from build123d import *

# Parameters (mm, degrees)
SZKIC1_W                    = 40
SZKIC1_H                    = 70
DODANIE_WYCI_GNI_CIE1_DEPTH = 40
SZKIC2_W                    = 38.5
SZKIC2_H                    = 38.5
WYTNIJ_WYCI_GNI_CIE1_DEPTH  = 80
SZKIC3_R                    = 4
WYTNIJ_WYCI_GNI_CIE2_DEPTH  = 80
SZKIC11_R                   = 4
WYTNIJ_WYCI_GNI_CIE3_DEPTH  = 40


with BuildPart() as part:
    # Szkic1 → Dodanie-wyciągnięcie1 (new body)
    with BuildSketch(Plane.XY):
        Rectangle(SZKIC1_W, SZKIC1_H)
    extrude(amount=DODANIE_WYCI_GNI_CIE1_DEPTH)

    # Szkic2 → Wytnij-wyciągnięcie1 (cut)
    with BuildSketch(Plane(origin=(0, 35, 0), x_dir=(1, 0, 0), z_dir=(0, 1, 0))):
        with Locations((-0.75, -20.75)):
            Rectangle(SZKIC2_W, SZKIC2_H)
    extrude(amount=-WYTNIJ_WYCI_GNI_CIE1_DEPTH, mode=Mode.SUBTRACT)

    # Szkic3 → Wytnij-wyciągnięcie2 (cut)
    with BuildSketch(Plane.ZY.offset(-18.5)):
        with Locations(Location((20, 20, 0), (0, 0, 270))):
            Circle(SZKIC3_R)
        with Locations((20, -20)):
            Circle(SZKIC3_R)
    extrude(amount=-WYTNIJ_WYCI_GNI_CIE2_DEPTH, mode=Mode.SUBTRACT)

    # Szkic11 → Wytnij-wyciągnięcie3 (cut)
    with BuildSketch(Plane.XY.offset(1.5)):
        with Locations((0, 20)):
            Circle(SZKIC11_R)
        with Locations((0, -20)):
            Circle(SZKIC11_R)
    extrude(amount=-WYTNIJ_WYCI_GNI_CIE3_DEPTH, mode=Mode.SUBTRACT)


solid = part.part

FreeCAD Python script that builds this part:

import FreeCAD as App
import Part
import Sketcher

V = App.Vector
Q = App.Units.Quantity


def add_polygon(sketch, points):
    """Adds a closed chain of lines whose ends are joined by coincident constraints."""
    first, n = sketch.GeometryCount, len(points)
    for a, b in zip(points, points[1:] + points[:1]):
        sketch.addGeometry(Part.LineSegment(App.Vector(*a, 0), App.Vector(*b, 0)), False)
    for i in range(n):
        sketch.addConstraint(Sketcher.Constraint("Coincident", first + i, 2, first + (i + 1) % n, 1))

doc = App.newDocument("Part")
body = doc.addObject("PartDesign::Body", "Body")

# Sketch on XY plane
sketch1 = body.newObject("Sketcher::SketchObject", "Sketch")
sketch1.AttachmentSupport = (doc.getObject("XY_Plane"), [""])
sketch1.MapMode = "FlatFace"
add_polygon(sketch1, [(-20, 35), (-20, -35), (20, -35), (20, 35)])  # lines 0-3
sketch1.addConstraint(Sketcher.Constraint("Vertical", 0))
sketch1.addConstraint(Sketcher.Constraint("Horizontal", 1))
sketch1.addConstraint(Sketcher.Constraint("Vertical", 2))
sketch1.addConstraint(Sketcher.Constraint("Horizontal", 3))
sketch1.addConstraint(Sketcher.Constraint("Symmetric", 0, 2, 2, 2, -1, 1))
sketch1.addConstraint(Sketcher.Constraint("DistanceX", 1, 1, 1, 2, Q("40 mm")))
sketch1.addConstraint(Sketcher.Constraint("DistanceY", 0, 2, 0, 1, Q("70 mm")))
pad1 = body.newObject("PartDesign::Pad", "Pad")
pad1.Profile = sketch1
pad1.Length = 40

# Sketch on XZ plane
sketch2 = body.newObject("Sketcher::SketchObject", "Sketch001")
sketch2.AttachmentSupport = (doc.getObject("XZ_Plane"), [""])
sketch2.MapMode = "FlatFace"
sketch2.AttachmentOffset = App.Placement(V(0, 0, -35), App.Rotation())
add_polygon(sketch2, [(-20, 1.5), (-20, 40), (18.5, 40), (18.5, 1.5)])  # lines 0-3
sketch2.addConstraint(Sketcher.Constraint("Vertical", 0))
sketch2.addConstraint(Sketcher.Constraint("Horizontal", 1))
sketch2.addConstraint(Sketcher.Constraint("Vertical", 2))
sketch2.addConstraint(Sketcher.Constraint("Horizontal", 3))
sketch2.addConstraint(Sketcher.Constraint("Equal", 3, 0))
sketch2.addConstraint(Sketcher.Constraint("DistanceX", 1, 1, 1, 2, Q("38.5 mm")))
sketch2.addConstraint(Sketcher.Constraint("DistanceX", 0, 2, -1, 1, Q("20 mm")))
sketch2.addConstraint(Sketcher.Constraint("DistanceY", -1, 1, 0, 2, Q("40 mm")))
pocket1 = body.newObject("PartDesign::Pocket", "Pocket")
pocket1.Profile = sketch2
pocket1.Length = 80
pocket1.Reversed = True

# Sketch on YZ plane
sketch3 = body.newObject("Sketcher::SketchObject", "Sketch002")
sketch3.AttachmentSupport = (doc.getObject("YZ_Plane"), [""])
sketch3.MapMode = "FlatFace"
sketch3.AttachmentOffset = App.Placement(V(0, 0, 18.5), App.Rotation())
sketch3.addGeometry(Part.Circle(V(20, 20, 0), V(0, 0, 1), 4), False)
sketch3.addGeometry(Part.Circle(V(-20, 20, 0), V(0, 0, 1), 4), False)
sketch3.addConstraint(Sketcher.Constraint("Equal", 0, 1))
sketch3.addConstraint(Sketcher.Constraint("Symmetric", 0, 3, 1, 3, -2))
sketch3.addConstraint(Sketcher.Constraint("Diameter", 0, Q("8 mm")))
sketch3.addConstraint(Sketcher.Constraint("DistanceX", -1, 1, 0, 3, Q("20 mm")))
sketch3.addConstraint(Sketcher.Constraint("DistanceY", -1, 1, 0, 3, Q("20 mm")))
pocket2 = body.newObject("PartDesign::Pocket", "Pocket001")
pocket2.Profile = sketch3
pocket2.Length = 80
pocket2.Reversed = True

# Sketch on XY plane
sketch4 = body.newObject("Sketcher::SketchObject", "Sketch003")
sketch4.AttachmentSupport = (doc.getObject("XY_Plane"), [""])
sketch4.MapMode = "FlatFace"
sketch4.AttachmentOffset = App.Placement(V(0, 0, 1.5), App.Rotation())
sketch4.addGeometry(Part.Circle(V(0, 20, 0), V(0, 0, 1), 4), False)
sketch4.addGeometry(Part.Circle(V(0, -20, 0), V(0, 0, 1), 4), False)
sketch4.addConstraint(Sketcher.Constraint("Equal", 0, 1))
sketch4.addConstraint(Sketcher.Constraint("Symmetric", 0, 3, 1, 3, -1, 1))
sketch4.addConstraint(Sketcher.Constraint("PointOnObject", 0, 3, -2))
sketch4.addConstraint(Sketcher.Constraint("Diameter", 0, Q("8 mm")))
sketch4.addConstraint(Sketcher.Constraint("DistanceY", -1, 1, 0, 3, Q("20 mm")))
pocket3 = body.newObject("PartDesign::Pocket", "Pocket002")
pocket3.Profile = sketch4
pocket3.Length = 40

doc.recompute()
